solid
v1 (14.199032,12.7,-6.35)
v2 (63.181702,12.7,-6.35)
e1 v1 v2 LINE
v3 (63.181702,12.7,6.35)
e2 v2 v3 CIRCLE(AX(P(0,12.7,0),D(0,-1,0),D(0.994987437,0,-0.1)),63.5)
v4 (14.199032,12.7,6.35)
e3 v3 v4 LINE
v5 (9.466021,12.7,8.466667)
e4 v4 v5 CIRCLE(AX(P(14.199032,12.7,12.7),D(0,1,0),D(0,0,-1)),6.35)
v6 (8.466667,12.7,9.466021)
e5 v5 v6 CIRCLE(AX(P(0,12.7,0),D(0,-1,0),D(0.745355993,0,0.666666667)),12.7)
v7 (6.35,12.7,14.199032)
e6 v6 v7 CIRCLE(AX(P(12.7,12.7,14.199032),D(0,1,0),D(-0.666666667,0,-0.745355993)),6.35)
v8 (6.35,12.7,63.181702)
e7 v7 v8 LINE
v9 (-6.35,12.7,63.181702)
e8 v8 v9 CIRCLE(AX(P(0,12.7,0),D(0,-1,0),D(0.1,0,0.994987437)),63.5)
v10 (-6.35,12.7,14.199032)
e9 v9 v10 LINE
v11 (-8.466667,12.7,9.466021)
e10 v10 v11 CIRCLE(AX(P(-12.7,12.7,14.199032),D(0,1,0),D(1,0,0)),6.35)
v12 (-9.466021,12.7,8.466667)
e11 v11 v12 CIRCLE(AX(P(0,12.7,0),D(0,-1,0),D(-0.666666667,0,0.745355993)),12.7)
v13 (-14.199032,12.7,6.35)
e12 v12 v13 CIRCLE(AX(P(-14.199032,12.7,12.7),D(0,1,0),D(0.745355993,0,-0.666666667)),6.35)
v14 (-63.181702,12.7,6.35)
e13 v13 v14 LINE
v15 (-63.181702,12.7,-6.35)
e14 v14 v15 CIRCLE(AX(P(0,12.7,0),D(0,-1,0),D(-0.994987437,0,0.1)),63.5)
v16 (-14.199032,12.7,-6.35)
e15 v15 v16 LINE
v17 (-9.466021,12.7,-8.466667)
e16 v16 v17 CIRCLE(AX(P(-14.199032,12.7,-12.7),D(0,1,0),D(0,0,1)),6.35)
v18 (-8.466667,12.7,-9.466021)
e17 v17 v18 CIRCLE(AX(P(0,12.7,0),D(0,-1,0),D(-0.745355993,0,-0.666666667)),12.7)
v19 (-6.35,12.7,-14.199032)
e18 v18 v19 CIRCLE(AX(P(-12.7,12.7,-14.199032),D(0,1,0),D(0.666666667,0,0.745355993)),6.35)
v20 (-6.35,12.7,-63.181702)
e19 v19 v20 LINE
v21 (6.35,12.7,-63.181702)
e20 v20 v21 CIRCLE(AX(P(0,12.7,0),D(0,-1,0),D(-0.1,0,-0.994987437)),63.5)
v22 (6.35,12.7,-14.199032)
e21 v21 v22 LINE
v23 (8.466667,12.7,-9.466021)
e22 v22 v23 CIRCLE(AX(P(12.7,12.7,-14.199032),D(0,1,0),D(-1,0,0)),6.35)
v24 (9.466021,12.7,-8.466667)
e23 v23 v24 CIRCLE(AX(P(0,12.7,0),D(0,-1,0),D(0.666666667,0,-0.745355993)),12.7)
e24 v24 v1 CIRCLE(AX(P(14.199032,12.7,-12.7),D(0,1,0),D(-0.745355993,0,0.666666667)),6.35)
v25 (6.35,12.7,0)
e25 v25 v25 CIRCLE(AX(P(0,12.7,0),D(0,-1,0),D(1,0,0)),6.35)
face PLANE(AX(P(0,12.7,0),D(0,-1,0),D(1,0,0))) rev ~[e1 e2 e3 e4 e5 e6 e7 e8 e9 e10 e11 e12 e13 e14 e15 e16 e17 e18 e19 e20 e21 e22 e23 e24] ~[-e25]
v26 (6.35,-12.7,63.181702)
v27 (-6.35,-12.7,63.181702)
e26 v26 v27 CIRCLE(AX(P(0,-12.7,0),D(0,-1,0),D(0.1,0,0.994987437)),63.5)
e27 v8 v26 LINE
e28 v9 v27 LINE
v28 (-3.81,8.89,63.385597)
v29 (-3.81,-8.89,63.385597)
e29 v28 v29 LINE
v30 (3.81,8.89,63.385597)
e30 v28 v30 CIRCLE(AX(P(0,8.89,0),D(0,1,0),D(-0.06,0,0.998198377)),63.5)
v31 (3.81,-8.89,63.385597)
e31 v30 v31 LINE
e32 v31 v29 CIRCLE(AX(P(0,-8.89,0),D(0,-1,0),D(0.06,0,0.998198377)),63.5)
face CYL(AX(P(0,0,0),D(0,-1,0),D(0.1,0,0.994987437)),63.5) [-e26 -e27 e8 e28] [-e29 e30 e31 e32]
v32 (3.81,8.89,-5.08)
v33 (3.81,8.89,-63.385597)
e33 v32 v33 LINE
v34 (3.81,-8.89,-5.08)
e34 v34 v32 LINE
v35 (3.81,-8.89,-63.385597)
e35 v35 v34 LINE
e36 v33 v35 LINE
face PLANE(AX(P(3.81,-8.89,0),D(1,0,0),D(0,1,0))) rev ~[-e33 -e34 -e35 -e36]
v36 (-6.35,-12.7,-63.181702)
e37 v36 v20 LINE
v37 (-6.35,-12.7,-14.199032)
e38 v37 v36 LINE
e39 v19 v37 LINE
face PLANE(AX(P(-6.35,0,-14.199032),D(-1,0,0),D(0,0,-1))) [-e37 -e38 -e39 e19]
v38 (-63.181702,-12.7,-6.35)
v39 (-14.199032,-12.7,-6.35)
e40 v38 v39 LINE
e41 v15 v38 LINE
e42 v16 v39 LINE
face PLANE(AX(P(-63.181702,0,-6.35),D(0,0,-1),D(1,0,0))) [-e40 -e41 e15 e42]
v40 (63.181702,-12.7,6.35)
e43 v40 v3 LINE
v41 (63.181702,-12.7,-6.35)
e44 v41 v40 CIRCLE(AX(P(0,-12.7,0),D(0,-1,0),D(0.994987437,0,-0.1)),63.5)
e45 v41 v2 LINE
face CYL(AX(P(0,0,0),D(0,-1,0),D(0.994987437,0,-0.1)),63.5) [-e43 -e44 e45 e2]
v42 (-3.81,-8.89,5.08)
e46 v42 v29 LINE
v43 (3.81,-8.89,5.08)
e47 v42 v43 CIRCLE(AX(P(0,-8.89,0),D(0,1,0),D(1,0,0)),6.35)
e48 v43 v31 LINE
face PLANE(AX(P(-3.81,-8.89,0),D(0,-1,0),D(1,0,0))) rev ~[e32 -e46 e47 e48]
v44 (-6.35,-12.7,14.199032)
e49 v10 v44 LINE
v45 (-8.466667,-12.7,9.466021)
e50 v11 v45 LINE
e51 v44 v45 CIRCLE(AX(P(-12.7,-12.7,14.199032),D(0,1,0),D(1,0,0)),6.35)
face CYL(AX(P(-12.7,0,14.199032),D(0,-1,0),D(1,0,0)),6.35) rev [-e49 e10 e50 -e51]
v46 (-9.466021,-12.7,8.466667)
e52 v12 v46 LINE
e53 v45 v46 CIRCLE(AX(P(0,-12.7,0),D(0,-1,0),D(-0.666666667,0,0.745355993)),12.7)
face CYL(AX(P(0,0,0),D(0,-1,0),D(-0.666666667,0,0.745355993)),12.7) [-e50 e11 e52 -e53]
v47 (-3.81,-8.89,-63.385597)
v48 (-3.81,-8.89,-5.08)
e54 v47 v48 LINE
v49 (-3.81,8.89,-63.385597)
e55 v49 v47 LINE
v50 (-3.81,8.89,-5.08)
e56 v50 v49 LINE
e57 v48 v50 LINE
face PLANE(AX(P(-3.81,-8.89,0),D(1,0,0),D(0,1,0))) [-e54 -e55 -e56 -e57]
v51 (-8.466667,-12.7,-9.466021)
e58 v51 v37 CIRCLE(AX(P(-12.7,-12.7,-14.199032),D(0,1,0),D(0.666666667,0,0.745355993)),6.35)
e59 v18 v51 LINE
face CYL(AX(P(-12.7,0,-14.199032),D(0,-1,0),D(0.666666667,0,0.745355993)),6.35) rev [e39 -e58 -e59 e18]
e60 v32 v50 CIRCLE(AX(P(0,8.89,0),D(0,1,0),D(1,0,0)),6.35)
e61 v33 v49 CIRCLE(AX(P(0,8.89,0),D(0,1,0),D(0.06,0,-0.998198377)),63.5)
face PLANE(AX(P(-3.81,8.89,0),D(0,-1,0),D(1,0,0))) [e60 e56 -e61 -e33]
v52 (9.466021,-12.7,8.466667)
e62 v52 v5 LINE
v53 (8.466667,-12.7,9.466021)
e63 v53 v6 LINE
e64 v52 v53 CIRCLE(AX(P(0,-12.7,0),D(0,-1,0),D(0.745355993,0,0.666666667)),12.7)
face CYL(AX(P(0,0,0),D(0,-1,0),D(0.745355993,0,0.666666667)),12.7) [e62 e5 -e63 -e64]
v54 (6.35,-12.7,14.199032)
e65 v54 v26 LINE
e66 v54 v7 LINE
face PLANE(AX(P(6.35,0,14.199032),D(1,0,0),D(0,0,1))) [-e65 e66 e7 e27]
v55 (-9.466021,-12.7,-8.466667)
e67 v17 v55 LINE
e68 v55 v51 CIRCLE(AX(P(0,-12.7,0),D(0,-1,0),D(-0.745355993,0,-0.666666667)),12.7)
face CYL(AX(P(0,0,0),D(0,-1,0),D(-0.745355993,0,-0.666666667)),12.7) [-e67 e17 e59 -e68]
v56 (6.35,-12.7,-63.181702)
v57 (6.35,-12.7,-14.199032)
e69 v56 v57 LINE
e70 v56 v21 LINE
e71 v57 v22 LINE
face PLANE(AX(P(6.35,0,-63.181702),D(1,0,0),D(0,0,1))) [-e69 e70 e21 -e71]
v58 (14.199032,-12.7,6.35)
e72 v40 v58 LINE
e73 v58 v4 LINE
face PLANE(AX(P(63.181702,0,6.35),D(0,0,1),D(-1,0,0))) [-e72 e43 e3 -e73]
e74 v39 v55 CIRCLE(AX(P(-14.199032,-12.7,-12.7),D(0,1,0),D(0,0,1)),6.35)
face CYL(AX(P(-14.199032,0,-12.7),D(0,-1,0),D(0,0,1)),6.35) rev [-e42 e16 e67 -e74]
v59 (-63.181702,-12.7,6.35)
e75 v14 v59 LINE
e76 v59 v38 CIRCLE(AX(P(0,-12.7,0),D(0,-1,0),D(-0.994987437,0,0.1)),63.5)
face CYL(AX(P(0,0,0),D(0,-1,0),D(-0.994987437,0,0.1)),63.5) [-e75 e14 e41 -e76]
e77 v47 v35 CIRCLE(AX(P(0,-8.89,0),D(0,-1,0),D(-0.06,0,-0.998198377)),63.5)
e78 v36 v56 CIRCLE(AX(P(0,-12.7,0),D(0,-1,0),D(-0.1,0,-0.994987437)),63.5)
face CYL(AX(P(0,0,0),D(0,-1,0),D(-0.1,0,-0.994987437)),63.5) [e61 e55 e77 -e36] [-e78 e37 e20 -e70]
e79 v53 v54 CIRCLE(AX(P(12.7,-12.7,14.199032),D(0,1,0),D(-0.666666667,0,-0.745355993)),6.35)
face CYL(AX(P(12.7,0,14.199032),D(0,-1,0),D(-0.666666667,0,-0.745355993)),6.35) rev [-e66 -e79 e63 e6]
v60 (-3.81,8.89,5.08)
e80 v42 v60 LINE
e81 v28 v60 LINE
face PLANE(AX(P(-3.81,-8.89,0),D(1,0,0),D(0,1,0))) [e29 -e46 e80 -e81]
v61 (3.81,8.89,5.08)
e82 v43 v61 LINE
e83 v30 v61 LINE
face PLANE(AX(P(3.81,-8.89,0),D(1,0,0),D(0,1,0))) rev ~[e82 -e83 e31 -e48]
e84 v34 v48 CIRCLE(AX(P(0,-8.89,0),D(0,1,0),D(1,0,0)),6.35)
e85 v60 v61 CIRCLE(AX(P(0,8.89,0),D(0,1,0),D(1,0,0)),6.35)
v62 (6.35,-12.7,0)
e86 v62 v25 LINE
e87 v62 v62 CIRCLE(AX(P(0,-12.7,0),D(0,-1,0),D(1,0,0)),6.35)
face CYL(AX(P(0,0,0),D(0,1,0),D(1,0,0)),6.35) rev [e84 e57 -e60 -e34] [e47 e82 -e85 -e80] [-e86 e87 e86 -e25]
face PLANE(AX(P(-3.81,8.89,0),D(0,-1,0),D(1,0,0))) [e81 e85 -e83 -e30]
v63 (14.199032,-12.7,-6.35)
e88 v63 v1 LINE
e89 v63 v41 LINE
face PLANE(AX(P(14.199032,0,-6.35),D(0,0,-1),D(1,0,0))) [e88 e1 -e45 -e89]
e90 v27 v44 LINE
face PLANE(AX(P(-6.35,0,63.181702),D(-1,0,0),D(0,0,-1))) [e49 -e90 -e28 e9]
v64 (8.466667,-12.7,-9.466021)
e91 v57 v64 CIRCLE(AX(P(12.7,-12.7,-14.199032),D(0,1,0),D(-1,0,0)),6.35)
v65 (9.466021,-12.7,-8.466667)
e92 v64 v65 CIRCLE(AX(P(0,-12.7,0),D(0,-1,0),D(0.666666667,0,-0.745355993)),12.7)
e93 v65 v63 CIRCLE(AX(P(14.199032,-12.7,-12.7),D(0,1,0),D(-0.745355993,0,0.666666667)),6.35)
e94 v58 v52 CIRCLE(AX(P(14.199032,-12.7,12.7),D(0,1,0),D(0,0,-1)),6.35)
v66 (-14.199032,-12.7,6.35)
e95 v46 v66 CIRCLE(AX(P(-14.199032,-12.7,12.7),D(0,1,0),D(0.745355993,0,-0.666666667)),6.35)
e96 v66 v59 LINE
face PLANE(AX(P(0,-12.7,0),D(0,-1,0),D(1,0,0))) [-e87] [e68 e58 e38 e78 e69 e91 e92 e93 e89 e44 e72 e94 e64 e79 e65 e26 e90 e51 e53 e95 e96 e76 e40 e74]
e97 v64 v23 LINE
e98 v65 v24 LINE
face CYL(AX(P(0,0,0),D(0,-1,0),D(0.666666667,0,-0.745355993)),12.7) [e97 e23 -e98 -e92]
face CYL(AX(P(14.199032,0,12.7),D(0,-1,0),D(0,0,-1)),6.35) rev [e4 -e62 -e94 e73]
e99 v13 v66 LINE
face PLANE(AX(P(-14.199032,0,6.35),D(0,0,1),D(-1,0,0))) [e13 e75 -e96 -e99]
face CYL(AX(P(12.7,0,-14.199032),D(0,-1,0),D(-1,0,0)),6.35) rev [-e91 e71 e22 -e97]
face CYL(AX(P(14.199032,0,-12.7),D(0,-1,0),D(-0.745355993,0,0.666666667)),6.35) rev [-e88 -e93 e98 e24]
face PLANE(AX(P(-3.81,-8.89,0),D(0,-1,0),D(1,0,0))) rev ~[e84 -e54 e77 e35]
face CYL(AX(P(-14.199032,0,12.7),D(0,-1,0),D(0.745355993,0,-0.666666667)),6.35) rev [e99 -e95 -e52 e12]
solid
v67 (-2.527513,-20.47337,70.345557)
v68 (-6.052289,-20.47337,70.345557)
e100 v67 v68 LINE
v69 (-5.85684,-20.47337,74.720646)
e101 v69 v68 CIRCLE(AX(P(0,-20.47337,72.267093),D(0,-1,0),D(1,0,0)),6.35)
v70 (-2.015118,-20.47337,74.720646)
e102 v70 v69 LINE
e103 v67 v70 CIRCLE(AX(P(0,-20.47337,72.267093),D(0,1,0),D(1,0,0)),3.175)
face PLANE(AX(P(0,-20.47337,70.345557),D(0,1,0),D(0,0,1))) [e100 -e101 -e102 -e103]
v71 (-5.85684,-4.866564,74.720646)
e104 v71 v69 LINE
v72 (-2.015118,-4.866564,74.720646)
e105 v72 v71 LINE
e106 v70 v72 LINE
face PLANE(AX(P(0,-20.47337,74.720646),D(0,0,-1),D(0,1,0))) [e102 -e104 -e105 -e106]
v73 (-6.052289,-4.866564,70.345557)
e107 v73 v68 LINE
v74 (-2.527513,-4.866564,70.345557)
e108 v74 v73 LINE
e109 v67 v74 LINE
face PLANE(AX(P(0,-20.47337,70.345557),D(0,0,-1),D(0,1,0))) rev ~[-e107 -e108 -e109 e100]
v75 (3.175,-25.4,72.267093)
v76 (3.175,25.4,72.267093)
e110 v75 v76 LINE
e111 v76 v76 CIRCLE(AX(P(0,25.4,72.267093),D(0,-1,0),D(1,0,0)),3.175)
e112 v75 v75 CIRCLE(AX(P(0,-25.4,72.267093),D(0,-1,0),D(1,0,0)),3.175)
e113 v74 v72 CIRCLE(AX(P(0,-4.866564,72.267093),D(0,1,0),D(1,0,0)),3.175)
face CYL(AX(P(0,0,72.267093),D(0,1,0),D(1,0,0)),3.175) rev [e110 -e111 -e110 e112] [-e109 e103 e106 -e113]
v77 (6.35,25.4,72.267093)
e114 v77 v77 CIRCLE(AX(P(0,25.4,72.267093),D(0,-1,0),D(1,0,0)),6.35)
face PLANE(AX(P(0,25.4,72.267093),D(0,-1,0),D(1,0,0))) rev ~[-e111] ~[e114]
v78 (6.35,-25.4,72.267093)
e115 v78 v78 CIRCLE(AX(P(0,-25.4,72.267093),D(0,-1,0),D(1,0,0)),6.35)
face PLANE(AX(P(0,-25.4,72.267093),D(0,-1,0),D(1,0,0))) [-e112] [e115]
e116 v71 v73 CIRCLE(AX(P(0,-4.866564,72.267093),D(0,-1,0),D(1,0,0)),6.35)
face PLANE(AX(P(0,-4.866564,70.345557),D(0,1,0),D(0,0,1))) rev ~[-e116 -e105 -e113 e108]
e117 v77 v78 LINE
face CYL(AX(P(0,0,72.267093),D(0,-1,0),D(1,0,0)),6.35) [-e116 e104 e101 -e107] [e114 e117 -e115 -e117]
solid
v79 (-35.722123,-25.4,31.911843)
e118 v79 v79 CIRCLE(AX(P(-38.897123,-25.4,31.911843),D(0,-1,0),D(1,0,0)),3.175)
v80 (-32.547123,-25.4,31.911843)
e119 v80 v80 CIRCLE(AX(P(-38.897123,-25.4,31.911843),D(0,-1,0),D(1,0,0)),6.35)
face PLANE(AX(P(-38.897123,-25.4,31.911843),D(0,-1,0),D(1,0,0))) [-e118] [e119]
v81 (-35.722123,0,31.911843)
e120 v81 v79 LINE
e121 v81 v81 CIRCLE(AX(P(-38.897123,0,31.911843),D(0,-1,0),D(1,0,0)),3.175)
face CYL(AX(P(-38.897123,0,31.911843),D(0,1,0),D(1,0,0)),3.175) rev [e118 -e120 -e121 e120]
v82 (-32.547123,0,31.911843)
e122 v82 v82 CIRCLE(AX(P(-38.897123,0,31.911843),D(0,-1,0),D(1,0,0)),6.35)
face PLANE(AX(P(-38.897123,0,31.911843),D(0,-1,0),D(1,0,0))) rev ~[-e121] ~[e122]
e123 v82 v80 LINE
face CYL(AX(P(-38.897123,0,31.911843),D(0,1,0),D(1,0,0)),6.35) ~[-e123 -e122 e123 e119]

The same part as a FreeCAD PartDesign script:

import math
import FreeCAD as App
import Part
import Sketcher
from FreeCAD import Vector
Q = App.Units.Quantity

doc = App.newDocument("Part")
body = doc.addObject("PartDesign::Body", "Body")

sketch1 = body.newObject("Sketcher::SketchObject", "Sketch")
sketch1.AttachmentSupport = (doc.getObject("XZ_Plane"), [""])
sketch1.MapMode = "FlatFace"
sketch1.addGeometry([
    Part.LineSegment(Vector(6.3, 14.2, 0), Vector(6.3, 63.2, 0)),
    Part.ArcOfCircle(Part.Circle(Vector(0, 0, 0), Vector(0, 0, 1), 63.5), math.radians(84.26), math.radians(95.74)),
    Part.LineSegment(Vector(-6.3, 63.2, 0), Vector(-6.3, 14.2, 0)),
    Part.ArcOfCircle(Part.Circle(Vector(-12.7, 14.2, 0), Vector(0, 0, 1), 6.3), math.radians(-48), math.radians(0)),
    Part.ArcOfCircle(Part.Circle(Vector(0, 0, 0), Vector(0, 0, 1), 12.7), math.radians(131.81), math.radians(138.19)),
    Part.ArcOfCircle(Part.Circle(Vector(-14.2, 12.7, 0), Vector(0, 0, 1), 6.3), math.radians(-90), math.radians(-42)),
    Part.LineSegment(Vector(-14.2, 6.3, 0), Vector(-63.2, 6.3, 0)),
    Part.ArcOfCircle(Part.Circle(Vector(0, 0, 0), Vector(0, 0, 1), 63.5), math.radians(174.26), math.radians(185.74)),
    Part.LineSegment(Vector(-63.2, -6.3, 0), Vector(-14.2, -6.3, 0)),
    Part.ArcOfCircle(Part.Circle(Vector(-14.2, -12.7, 0), Vector(0, 0, 1), 6.3), math.radians(42), math.radians(90)),
    Part.ArcOfCircle(Part.Circle(Vector(0, 0, 0), Vector(0, 0, 1), 12.7), math.radians(-138.19), math.radians(-131.81)),
    Part.ArcOfCircle(Part.Circle(Vector(-12.7, -14.2, 0), Vector(0, 0, 1), 6.3), math.radians(0), math.radians(48)),
    Part.LineSegment(Vector(-6.3, -14.2, 0), Vector(-6.3, -63.2, 0)),
    Part.ArcOfCircle(Part.Circle(Vector(0, 0, 0), Vector(0, 0, 1), 63.5), math.radians(-95.74), math.radians(-84.26)),
    Part.LineSegment(Vector(6.3, -63.2, 0), Vector(6.3, -14.2, 0)),
    Part.ArcOfCircle(Part.Circle(Vector(12.7, -14.2, 0), Vector(0, 0, 1), 6.3), math.radians(132), math.radians(180)),
    Part.ArcOfCircle(Part.Circle(Vector(0, 0, 0), Vector(0, 0, 1), 12.7), math.radians(-48.19), math.radians(-41.81)),
    Part.ArcOfCircle(Part.Circle(Vector(14.2, -12.7, 0), Vector(0, 0, 1), 6.3), math.radians(90), math.radians(138)),
    Part.LineSegment(Vector(14.2, -6.3, 0), Vector(63.2, -6.3, 0)),
    Part.ArcOfCircle(Part.Circle(Vector(0, 0, 0), Vector(0, 0, 1), 63.5), math.radians(-5.74), math.radians(5.74)),
    Part.LineSegment(Vector(63.2, 6.3, 0), Vector(14.2, 6.3, 0)),
    Part.ArcOfCircle(Part.Circle(Vector(14.2, 12.7, 0), Vector(0, 0, 1), 6.3), math.radians(-138), math.radians(-90)),
    Part.ArcOfCircle(Part.Circle(Vector(0, 0, 0), Vector(0, 0, 1), 12.7), math.radians(41.81), math.radians(48.19)),
    Part.ArcOfCircle(Part.Circle(Vector(12.7, 14.2, 0), Vector(0, 0, 1), 6.3), math.radians(180), math.radians(228)),
    Part.Circle(Vector(0, 0, 0), Vector(0, 0, 1), 6.3),
], False)
sketch1.addConstraint([
    Sketcher.Constraint("Coincident", 0, 2, 1, 1),
    Sketcher.Constraint("Coincident", 1, 2, 2, 1),
    Sketcher.Constraint("Tangent", 2, 2, 3, 2),
    Sketcher.Constraint("Tangent", 3, 1, 4, 1),
    Sketcher.Constraint("Tangent", 4, 2, 5, 2),
    Sketcher.Constraint("Tangent", 5, 1, 6, 1),
    Sketcher.Constraint("Coincident", 6, 2, 7, 1),
    Sketcher.Constraint("Coincident", 7, 2, 8, 1),
    Sketcher.Constraint("Tangent", 8, 2, 9, 2),
    Sketcher.Constraint("Tangent", 9, 1, 10, 1),
    Sketcher.Constraint("Tangent", 10, 2, 11, 2),
    Sketcher.Constraint("Tangent", 11, 1, 12, 1),
    Sketcher.Constraint("Coincident", 12, 2, 13, 1),
    Sketcher.Constraint("Coincident", 13, 2, 14, 1),
    Sketcher.Constraint("Tangent", 14, 2, 15, 2),
    Sketcher.Constraint("Tangent", 15, 1, 16, 1),
    Sketcher.Constraint("Tangent", 16, 2, 17, 2),
    Sketcher.Constraint("Tangent", 17, 1, 18, 1),
    Sketcher.Constraint("Coincident", 18, 2, 19, 1),
    Sketcher.Constraint("Coincident", 19, 2, 20, 1),
    Sketcher.Constraint("Tangent", 20, 2, 21, 2),
    Sketcher.Constraint("Tangent", 21, 1, 22, 1),
    Sketcher.Constraint("Tangent", 22, 2, 23, 2),
    Sketcher.Constraint("Tangent", 23, 1, 0, 1),
    Sketcher.Constraint("Vertical", 0),
    Sketcher.Constraint("Vertical", 2),
    Sketcher.Constraint("Horizontal", 6),
    Sketcher.Constraint("Horizontal", 8),
    Sketcher.Constraint("Vertical", 12),
    Sketcher.Constraint("Vertical", 14),
    Sketcher.Constraint("Horizontal", 18),
    Sketcher.Constraint("Horizontal", 20),
    Sketcher.Constraint("Coincident", 1, 3, -1, 1),
    Sketcher.Constraint("Coincident", 4, 3, -1, 1),
    Sketcher.Constraint("Coincident", 7, 3, -1, 1),
    Sketcher.Constraint("Coincident", 10, 3, -1, 1),
    Sketcher.Constraint("Coincident", 13, 3, -1, 1),
    Sketcher.Constraint("Coincident", 16, 3, -1, 1),
    Sketcher.Constraint("Coincident", 19, 3, -1, 1),
    Sketcher.Constraint("Coincident", 22, 3, -1, 1),
    Sketcher.Constraint("Coincident", 24, 3, -1, 1),
    Sketcher.Constraint("Equal", 3, 5),
    Sketcher.Constraint("Equal", 1, 7),
    Sketcher.Constraint("Equal", 5, 9),
    Sketcher.Constraint("Equal", 4, 10),
    Sketcher.Constraint("Equal", 9, 11),
    Sketcher.Constraint("Equal", 7, 13),
    Sketcher.Constraint("Equal", 11, 15),
    Sketcher.Constraint("Equal", 10, 16),
    Sketcher.Constraint("Equal", 15, 17),
    Sketcher.Constraint("Equal", 13, 19),
    Sketcher.Constraint("Equal", 17, 21),
    Sketcher.Constraint("Equal", 16, 22),
    Sketcher.Constraint("Equal", 21, 23),
    Sketcher.Constraint("Equal", 23, 24),
    Sketcher.Constraint("Horizontal", 11, 3, 15, 3),
    Sketcher.Constraint("Horizontal", 9, 3, 17, 3),
    Sketcher.Constraint("Horizontal", 5, 3, 21, 3),
    Sketcher.Constraint("Horizontal", 3, 3, 23, 3),
    Sketcher.Constraint("Vertical", 5, 3, 9, 3),
    Sketcher.Constraint("Vertical", 3, 3, 11, 3),
    Sketcher.Constraint("Equal", 20, 0),
    Sketcher.Constraint("Diameter", 24, Q("0.5 in")),
    Sketcher.Constraint("Radius", 1, Q("2.5 in")),
    Sketcher.Constraint("Radius", 4, Q("0.5 in")),
    Sketcher.Constraint("DistanceY", 9, 3, 5, 3, Q("1 in")),
])
pad1 = body.newObject("PartDesign::Pad", "Pad")
pad1.Profile = sketch1
pad1.Length = Q("1 in")
pad1.Midplane = True

sketch2 = body.newObject("Sketcher::SketchObject", "Sketch001")
sketch2.AttachmentSupport = (doc.getObject("XY_Plane"), [""])
sketch2.MapMode = "FlatFace"
sketch2.addGeometry([
    Part.LineSegment(Vector(-4, 9, 0), Vector(-4, -9, 0)),
    Part.LineSegment(Vector(-4, -9, 0), Vector(4, -9, 0)),
    Part.LineSegment(Vector(4, -9, 0), Vector(4, 9, 0)),
    Part.LineSegment(Vector(4, 9, 0), Vector(-4, 9, 0)),
], False)
sketch2.addConstraint([
    Sketcher.Constraint("Coincident", 0, 2, 1, 1),
    Sketcher.Constraint("Coincident", 1, 2, 2, 1),
    Sketcher.Constraint("Coincident", 2, 2, 3, 1),
    Sketcher.Constraint("Coincident", 3, 2, 0, 1),
    Sketcher.Constraint("Vertical", 0),
    Sketcher.Constraint("Horizontal", 1),
    Sketcher.Constraint("Vertical", 2),
    Sketcher.Constraint("Horizontal", 3),
    Sketcher.Constraint("Symmetric", 0, 2, 2, 2, -1, 1),
    Sketcher.Constraint("DistanceX", 1, 1, 1, 2, Q("0.3 in")),
    Sketcher.Constraint("DistanceY", 0, 2, 0, 1, Q("0.7 in")),
])
pocket1 = body.newObject("PartDesign::Pocket", "Pocket")
pocket1.Profile = sketch2
pocket1.Length = Q("5 in")
pocket1.Midplane = True
body2 = doc.addObject("PartDesign::Body", "Body001")

sketch3 = body2.newObject("Sketcher::SketchObject", "Sketch002")
sketch3.AttachmentSupport = (doc.getObject("XZ_Plane001"), [""])
sketch3.MapMode = "FlatFace"
sketch3.addGeometry([
    Part.Circle(Vector(0, 72.3, 0), Vector(0, 0, 1), 6.3),
    Part.Circle(Vector(0, 72.3, 0), Vector(0, 0, 1), 3.2),
], False)
sketch3.addConstraint([
    Sketcher.Constraint("Coincident", 1, 3, 0, 3),
    Sketcher.Constraint("PointOnObject", 0, 3, -2),
    Sketcher.Constraint("Diameter", 0, Q("0.5 in")),
    Sketcher.Constraint("Diameter", 1, Q("0.25 in")),
    Sketcher.Constraint("DistanceY", -1, 1, 0, 3, 72.267093),
])
pad2 = body2.newObject("PartDesign::Pad", "Pad001")
pad2.Profile = sketch3
pad2.Length = Q("2 in")
pad2.Midplane = True

sketch4 = body2.newObject("Sketcher::SketchObject", "Sketch003")
sketch4.AttachmentSupport = (doc.getObject("YZ_Plane001"), [""])
sketch4.MapMode = "FlatFace"
sketch4.addGeometry([
    Part.LineSegment(Vector(-20.5, 74.7, 0), Vector(-20.5, 70.3, 0)),
    Part.LineSegment(Vector(-20.5, 70.3, 0), Vector(-4.9, 70.3, 0)),
    Part.LineSegment(Vector(-4.9, 70.3, 0), Vector(-4.9, 74.7, 0)),
    Part.LineSegment(Vector(-4.9, 74.7, 0), Vector(-20.5, 74.7, 0)),
], False)
sketch4.addConstraint([
    Sketcher.Constraint("Coincident", 0, 2, 1, 1),
    Sketcher.Constraint("Coincident", 1, 2, 2, 1),
    Sketcher.Constraint("Coincident", 2, 2, 3, 1),
    Sketcher.Constraint("Coincident", 3, 2, 0, 1),
    Sketcher.Constraint("Vertical", 0),
    Sketcher.Constraint("Horizontal", 1),
    Sketcher.Constraint("Vertical", 2),
    Sketcher.Constraint("Horizontal", 3),
    Sketcher.Constraint("DistanceY", 0, 2, 0, 1, 4.375089),
    Sketcher.Constraint("DistanceX", 1, 1, 1, 2, 15.606806),
    Sketcher.Constraint("DistanceX", 0, 2, -1, 1, 20.47337),
    Sketcher.Constraint("DistanceY", -1, 1, 0, 2, 70.345557),
])
pocket2 = body2.newObject("PartDesign::Pocket", "Pocket001")
pocket2.Profile = sketch4
pocket2.Length = Q("0.3 in")
body3 = doc.addObject("PartDesign::Body", "Body002")

sketch5 = body3.newObject("Sketcher::SketchObject", "Sketch004")
sketch5.AttachmentSupport = (doc.getObject("XZ_Plane002"), [""])
sketch5.MapMode = "FlatFace"
sketch5.addGeometry([
    Part.Circle(Vector(-38.9, 31.9, 0), Vector(0, 0, 1), 6.3),
    Part.Circle(Vector(-38.9, 31.9, 0), Vector(0, 0, 1), 3.2),
], False)
sketch5.addConstraint([
    Sketcher.Constraint("Coincident", 1, 3, 0, 3),
    Sketcher.Constraint("Diameter", 0, Q("0.5 in")),
    Sketcher.Constraint("Diameter", 1, Q("0.25 in")),
    Sketcher.Constraint("DistanceX", 0, 3, -1, 1, 38.897123),
    Sketcher.Constraint("DistanceY", -1, 1, 0, 3, 31.911843),
])
pad3 = body3.newObject("PartDesign::Pad", "Pad002")
pad3.Profile = sketch5
pad3.Length = Q("1 in")

doc.recompute()
